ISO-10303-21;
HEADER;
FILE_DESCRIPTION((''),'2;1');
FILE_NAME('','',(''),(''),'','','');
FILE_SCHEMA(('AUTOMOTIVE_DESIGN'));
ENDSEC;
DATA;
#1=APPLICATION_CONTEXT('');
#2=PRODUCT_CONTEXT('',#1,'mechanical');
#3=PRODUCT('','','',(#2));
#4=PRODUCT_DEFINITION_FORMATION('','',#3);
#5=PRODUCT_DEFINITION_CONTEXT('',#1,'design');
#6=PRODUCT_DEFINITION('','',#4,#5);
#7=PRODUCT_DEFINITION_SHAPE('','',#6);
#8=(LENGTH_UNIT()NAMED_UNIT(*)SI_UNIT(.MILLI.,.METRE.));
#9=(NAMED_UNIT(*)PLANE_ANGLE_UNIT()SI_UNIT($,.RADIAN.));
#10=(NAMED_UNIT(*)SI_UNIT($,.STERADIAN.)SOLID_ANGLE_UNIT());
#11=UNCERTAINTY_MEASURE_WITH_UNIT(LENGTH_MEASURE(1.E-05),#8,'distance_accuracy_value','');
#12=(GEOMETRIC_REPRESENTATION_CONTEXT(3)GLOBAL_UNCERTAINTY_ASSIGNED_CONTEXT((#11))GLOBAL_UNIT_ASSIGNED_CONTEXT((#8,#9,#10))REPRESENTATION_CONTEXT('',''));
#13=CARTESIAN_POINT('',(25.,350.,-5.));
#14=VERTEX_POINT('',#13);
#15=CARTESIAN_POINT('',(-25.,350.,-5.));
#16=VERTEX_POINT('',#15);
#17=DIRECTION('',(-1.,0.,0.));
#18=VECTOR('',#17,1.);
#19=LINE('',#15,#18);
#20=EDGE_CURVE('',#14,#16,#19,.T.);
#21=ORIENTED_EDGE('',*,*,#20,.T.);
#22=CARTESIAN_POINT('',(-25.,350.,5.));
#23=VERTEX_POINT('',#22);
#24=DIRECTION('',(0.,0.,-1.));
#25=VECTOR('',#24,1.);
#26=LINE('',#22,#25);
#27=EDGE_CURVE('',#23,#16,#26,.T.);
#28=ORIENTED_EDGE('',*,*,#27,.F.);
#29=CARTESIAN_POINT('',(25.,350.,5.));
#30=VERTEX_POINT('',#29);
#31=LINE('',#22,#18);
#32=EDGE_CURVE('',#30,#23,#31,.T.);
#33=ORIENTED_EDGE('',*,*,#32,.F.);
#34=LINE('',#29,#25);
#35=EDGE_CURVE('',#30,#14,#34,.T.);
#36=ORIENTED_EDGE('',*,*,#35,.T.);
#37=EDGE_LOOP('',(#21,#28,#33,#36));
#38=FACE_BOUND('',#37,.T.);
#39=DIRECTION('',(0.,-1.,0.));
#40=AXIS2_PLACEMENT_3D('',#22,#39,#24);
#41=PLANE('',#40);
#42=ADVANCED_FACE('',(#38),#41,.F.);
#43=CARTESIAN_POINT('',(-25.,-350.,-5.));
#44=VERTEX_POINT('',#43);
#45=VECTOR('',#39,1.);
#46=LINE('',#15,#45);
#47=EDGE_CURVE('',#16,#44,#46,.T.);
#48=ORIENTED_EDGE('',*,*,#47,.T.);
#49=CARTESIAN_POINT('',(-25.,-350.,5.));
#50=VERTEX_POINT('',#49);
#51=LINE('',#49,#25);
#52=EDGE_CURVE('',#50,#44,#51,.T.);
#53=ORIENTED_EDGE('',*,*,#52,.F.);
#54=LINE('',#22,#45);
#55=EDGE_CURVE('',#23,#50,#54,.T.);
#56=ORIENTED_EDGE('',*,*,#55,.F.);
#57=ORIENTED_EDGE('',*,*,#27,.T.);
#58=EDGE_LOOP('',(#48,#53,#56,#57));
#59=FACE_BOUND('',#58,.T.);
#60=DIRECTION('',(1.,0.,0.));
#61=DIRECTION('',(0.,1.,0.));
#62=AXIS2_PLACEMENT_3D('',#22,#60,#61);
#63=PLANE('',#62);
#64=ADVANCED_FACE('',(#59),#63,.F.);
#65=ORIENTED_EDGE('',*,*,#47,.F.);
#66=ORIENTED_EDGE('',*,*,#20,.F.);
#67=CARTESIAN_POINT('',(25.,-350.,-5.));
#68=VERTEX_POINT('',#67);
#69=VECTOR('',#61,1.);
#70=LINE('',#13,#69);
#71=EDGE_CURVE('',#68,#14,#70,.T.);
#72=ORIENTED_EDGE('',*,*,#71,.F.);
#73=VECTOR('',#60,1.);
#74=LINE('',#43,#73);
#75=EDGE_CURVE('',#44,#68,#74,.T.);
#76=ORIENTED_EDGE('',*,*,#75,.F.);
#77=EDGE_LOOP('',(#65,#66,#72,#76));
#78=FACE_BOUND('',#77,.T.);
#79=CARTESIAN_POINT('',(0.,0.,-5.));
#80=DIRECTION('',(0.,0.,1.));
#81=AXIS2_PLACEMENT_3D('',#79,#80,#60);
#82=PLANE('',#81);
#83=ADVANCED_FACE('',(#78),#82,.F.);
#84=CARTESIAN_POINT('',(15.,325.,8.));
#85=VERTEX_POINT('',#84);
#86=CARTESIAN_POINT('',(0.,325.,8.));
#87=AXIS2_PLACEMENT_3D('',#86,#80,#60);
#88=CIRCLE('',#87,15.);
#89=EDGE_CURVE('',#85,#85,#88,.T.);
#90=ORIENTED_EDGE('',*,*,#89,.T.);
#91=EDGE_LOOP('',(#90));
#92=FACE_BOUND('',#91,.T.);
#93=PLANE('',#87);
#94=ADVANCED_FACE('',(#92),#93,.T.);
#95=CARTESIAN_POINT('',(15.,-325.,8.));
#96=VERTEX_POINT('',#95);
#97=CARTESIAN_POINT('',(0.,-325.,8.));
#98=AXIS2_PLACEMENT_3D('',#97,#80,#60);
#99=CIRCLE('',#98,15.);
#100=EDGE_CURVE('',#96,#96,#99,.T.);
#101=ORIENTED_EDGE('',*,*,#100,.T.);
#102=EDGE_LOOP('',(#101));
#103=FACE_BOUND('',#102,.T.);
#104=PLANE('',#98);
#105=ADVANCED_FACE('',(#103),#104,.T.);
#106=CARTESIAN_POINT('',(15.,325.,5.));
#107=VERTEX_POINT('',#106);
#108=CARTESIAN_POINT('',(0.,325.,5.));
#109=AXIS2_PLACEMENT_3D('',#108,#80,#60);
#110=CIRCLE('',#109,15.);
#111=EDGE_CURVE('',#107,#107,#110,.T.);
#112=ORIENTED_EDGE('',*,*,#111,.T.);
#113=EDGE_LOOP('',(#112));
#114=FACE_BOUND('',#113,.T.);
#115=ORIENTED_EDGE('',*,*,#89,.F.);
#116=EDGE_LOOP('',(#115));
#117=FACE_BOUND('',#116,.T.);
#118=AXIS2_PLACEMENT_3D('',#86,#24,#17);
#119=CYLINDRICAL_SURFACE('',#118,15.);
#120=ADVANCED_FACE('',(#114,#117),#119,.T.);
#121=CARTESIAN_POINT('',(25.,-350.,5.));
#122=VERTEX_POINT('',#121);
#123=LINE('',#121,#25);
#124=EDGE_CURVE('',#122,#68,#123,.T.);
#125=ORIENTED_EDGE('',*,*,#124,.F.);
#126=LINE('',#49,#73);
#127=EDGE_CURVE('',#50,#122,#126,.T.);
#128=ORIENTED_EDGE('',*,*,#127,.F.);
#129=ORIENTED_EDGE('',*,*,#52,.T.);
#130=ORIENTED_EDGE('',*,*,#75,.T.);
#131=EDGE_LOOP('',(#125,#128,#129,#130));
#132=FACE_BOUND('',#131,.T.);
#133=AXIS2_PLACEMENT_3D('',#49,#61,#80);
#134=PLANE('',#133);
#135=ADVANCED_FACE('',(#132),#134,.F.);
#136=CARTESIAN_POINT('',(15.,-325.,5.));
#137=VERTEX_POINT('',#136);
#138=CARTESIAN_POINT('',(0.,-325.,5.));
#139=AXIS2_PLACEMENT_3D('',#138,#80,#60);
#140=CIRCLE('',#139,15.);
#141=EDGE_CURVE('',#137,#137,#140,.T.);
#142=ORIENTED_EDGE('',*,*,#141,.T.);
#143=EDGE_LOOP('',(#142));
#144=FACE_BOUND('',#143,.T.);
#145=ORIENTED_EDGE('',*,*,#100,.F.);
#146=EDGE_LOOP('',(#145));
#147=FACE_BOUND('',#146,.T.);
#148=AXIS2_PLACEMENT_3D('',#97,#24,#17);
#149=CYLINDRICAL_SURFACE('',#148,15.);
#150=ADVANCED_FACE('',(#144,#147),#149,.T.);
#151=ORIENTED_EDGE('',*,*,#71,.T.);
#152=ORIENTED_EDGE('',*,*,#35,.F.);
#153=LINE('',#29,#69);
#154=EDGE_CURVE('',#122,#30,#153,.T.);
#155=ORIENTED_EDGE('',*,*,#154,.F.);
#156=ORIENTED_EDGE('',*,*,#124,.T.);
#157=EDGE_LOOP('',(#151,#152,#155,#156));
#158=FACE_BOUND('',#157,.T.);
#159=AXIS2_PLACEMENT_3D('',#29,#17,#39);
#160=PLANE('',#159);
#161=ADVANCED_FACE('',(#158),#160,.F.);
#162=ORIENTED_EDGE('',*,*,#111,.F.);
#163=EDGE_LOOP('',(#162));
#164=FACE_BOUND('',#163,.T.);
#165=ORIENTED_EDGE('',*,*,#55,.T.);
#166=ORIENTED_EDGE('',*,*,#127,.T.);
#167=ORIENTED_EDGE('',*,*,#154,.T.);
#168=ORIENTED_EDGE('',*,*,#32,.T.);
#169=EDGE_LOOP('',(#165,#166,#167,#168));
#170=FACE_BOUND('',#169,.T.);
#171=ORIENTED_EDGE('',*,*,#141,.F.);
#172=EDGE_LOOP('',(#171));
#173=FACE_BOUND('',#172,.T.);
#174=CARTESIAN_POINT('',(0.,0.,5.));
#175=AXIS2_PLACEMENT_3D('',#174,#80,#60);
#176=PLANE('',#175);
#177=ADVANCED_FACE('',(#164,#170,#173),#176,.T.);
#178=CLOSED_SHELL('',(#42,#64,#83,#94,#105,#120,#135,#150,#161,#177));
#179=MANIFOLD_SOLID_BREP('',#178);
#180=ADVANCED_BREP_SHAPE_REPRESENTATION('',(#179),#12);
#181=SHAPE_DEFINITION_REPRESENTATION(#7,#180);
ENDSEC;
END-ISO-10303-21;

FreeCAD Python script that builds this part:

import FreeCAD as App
import Part
import Sketcher

V = App.Vector
Q = App.Units.Quantity


def add_polygon(sketch, points):
    """Adds a closed chain of lines whose ends are joined by coincident constraints."""
    first, n = sketch.GeometryCount, len(points)
    for a, b in zip(points, points[1:] + points[:1]):
        sketch.addGeometry(Part.LineSegment(App.Vector(*a, 0), App.Vector(*b, 0)), False)
    for i in range(n):
        sketch.addConstraint(Sketcher.Constraint("Coincident", first + i, 2, first + (i + 1) % n, 1))

doc = App.newDocument("Part")
params = doc.addObject("Spreadsheet::Sheet", "Params")
for row, (alias, value) in enumerate([
    ("sketch1_width", "50 mm"),
    ("sketch1_height", "700 mm"),
    ("pad1_length", "10 mm"),
    ("sketch2_diameter", "30 mm"),
    ("pad2_length", "3 mm"),
], start=1):
    params.set(f"A{row}", alias)
    params.set(f"B{row}", "=" + value)
    params.setAlias(f"B{row}", alias)

body = doc.addObject("PartDesign::Body", "Body")

# Sketch on XY plane
sketch1 = body.newObject("Sketcher::SketchObject", "Sketch")
sketch1.AttachmentSupport = (doc.getObject("XY_Plane"), [""])
sketch1.MapMode = "FlatFace"
add_polygon(sketch1, [(-25, 350), (-25, -350), (25, -350), (25, 350)])  # lines 0-3
sketch1.addConstraint([
    Sketcher.Constraint("Vertical", 0),
    Sketcher.Constraint("Horizontal", 1),
    Sketcher.Constraint("Vertical", 2),
    Sketcher.Constraint("Horizontal", 3),
    Sketcher.Constraint("Symmetric", 0, 2, 2, 2, -1, 1),
    Sketcher.Constraint("DistanceX", 1, 1, 1, 2, Q("50 mm")),
    Sketcher.Constraint("DistanceY", 0, 2, 0, 1, Q("700 mm")),
])
sketch1.setExpression("Constraints[9]", "Params.sketch1_width")
sketch1.setExpression("Constraints[10]", "Params.sketch1_height")
pad1 = body.newObject("PartDesign::Pad", "Pad")
pad1.Profile = sketch1
pad1.setExpression("Length", "Params.pad1_length")
pad1.Midplane = True

# Sketch on XY plane
sketch2 = body.newObject("Sketcher::SketchObject", "Sketch001")
sketch2.AttachmentSupport = (doc.getObject("XY_Plane"), [""])
sketch2.MapMode = "FlatFace"
sketch2.AttachmentOffset = App.Placement(V(0, 0, 5), App.Rotation())
sketch2.addGeometry([
    Part.Circle(V(0, -325, 0), V(0, 0, 1), 15),
    Part.Circle(V(0, 325, 0), V(0, 0, 1), 15),
], False)
sketch2.addConstraint([
    Sketcher.Constraint("Equal", 0, 1),
    Sketcher.Constraint("Symmetric", 0, 3, 1, 3, -1, 1),
    Sketcher.Constraint("PointOnObject", 0, 3, -2),
    Sketcher.Constraint("Diameter", 0, Q("30 mm")),
    Sketcher.Constraint("DistanceY", 0, 3, -1, 1, Q("325 mm")),
])
sketch2.setExpression("Constraints[3]", "Params.sketch2_diameter")
pad2 = body.newObject("PartDesign::Pad", "Pad001")
pad2.Profile = sketch2
pad2.setExpression("Length", "Params.pad2_length")

doc.recompute()
